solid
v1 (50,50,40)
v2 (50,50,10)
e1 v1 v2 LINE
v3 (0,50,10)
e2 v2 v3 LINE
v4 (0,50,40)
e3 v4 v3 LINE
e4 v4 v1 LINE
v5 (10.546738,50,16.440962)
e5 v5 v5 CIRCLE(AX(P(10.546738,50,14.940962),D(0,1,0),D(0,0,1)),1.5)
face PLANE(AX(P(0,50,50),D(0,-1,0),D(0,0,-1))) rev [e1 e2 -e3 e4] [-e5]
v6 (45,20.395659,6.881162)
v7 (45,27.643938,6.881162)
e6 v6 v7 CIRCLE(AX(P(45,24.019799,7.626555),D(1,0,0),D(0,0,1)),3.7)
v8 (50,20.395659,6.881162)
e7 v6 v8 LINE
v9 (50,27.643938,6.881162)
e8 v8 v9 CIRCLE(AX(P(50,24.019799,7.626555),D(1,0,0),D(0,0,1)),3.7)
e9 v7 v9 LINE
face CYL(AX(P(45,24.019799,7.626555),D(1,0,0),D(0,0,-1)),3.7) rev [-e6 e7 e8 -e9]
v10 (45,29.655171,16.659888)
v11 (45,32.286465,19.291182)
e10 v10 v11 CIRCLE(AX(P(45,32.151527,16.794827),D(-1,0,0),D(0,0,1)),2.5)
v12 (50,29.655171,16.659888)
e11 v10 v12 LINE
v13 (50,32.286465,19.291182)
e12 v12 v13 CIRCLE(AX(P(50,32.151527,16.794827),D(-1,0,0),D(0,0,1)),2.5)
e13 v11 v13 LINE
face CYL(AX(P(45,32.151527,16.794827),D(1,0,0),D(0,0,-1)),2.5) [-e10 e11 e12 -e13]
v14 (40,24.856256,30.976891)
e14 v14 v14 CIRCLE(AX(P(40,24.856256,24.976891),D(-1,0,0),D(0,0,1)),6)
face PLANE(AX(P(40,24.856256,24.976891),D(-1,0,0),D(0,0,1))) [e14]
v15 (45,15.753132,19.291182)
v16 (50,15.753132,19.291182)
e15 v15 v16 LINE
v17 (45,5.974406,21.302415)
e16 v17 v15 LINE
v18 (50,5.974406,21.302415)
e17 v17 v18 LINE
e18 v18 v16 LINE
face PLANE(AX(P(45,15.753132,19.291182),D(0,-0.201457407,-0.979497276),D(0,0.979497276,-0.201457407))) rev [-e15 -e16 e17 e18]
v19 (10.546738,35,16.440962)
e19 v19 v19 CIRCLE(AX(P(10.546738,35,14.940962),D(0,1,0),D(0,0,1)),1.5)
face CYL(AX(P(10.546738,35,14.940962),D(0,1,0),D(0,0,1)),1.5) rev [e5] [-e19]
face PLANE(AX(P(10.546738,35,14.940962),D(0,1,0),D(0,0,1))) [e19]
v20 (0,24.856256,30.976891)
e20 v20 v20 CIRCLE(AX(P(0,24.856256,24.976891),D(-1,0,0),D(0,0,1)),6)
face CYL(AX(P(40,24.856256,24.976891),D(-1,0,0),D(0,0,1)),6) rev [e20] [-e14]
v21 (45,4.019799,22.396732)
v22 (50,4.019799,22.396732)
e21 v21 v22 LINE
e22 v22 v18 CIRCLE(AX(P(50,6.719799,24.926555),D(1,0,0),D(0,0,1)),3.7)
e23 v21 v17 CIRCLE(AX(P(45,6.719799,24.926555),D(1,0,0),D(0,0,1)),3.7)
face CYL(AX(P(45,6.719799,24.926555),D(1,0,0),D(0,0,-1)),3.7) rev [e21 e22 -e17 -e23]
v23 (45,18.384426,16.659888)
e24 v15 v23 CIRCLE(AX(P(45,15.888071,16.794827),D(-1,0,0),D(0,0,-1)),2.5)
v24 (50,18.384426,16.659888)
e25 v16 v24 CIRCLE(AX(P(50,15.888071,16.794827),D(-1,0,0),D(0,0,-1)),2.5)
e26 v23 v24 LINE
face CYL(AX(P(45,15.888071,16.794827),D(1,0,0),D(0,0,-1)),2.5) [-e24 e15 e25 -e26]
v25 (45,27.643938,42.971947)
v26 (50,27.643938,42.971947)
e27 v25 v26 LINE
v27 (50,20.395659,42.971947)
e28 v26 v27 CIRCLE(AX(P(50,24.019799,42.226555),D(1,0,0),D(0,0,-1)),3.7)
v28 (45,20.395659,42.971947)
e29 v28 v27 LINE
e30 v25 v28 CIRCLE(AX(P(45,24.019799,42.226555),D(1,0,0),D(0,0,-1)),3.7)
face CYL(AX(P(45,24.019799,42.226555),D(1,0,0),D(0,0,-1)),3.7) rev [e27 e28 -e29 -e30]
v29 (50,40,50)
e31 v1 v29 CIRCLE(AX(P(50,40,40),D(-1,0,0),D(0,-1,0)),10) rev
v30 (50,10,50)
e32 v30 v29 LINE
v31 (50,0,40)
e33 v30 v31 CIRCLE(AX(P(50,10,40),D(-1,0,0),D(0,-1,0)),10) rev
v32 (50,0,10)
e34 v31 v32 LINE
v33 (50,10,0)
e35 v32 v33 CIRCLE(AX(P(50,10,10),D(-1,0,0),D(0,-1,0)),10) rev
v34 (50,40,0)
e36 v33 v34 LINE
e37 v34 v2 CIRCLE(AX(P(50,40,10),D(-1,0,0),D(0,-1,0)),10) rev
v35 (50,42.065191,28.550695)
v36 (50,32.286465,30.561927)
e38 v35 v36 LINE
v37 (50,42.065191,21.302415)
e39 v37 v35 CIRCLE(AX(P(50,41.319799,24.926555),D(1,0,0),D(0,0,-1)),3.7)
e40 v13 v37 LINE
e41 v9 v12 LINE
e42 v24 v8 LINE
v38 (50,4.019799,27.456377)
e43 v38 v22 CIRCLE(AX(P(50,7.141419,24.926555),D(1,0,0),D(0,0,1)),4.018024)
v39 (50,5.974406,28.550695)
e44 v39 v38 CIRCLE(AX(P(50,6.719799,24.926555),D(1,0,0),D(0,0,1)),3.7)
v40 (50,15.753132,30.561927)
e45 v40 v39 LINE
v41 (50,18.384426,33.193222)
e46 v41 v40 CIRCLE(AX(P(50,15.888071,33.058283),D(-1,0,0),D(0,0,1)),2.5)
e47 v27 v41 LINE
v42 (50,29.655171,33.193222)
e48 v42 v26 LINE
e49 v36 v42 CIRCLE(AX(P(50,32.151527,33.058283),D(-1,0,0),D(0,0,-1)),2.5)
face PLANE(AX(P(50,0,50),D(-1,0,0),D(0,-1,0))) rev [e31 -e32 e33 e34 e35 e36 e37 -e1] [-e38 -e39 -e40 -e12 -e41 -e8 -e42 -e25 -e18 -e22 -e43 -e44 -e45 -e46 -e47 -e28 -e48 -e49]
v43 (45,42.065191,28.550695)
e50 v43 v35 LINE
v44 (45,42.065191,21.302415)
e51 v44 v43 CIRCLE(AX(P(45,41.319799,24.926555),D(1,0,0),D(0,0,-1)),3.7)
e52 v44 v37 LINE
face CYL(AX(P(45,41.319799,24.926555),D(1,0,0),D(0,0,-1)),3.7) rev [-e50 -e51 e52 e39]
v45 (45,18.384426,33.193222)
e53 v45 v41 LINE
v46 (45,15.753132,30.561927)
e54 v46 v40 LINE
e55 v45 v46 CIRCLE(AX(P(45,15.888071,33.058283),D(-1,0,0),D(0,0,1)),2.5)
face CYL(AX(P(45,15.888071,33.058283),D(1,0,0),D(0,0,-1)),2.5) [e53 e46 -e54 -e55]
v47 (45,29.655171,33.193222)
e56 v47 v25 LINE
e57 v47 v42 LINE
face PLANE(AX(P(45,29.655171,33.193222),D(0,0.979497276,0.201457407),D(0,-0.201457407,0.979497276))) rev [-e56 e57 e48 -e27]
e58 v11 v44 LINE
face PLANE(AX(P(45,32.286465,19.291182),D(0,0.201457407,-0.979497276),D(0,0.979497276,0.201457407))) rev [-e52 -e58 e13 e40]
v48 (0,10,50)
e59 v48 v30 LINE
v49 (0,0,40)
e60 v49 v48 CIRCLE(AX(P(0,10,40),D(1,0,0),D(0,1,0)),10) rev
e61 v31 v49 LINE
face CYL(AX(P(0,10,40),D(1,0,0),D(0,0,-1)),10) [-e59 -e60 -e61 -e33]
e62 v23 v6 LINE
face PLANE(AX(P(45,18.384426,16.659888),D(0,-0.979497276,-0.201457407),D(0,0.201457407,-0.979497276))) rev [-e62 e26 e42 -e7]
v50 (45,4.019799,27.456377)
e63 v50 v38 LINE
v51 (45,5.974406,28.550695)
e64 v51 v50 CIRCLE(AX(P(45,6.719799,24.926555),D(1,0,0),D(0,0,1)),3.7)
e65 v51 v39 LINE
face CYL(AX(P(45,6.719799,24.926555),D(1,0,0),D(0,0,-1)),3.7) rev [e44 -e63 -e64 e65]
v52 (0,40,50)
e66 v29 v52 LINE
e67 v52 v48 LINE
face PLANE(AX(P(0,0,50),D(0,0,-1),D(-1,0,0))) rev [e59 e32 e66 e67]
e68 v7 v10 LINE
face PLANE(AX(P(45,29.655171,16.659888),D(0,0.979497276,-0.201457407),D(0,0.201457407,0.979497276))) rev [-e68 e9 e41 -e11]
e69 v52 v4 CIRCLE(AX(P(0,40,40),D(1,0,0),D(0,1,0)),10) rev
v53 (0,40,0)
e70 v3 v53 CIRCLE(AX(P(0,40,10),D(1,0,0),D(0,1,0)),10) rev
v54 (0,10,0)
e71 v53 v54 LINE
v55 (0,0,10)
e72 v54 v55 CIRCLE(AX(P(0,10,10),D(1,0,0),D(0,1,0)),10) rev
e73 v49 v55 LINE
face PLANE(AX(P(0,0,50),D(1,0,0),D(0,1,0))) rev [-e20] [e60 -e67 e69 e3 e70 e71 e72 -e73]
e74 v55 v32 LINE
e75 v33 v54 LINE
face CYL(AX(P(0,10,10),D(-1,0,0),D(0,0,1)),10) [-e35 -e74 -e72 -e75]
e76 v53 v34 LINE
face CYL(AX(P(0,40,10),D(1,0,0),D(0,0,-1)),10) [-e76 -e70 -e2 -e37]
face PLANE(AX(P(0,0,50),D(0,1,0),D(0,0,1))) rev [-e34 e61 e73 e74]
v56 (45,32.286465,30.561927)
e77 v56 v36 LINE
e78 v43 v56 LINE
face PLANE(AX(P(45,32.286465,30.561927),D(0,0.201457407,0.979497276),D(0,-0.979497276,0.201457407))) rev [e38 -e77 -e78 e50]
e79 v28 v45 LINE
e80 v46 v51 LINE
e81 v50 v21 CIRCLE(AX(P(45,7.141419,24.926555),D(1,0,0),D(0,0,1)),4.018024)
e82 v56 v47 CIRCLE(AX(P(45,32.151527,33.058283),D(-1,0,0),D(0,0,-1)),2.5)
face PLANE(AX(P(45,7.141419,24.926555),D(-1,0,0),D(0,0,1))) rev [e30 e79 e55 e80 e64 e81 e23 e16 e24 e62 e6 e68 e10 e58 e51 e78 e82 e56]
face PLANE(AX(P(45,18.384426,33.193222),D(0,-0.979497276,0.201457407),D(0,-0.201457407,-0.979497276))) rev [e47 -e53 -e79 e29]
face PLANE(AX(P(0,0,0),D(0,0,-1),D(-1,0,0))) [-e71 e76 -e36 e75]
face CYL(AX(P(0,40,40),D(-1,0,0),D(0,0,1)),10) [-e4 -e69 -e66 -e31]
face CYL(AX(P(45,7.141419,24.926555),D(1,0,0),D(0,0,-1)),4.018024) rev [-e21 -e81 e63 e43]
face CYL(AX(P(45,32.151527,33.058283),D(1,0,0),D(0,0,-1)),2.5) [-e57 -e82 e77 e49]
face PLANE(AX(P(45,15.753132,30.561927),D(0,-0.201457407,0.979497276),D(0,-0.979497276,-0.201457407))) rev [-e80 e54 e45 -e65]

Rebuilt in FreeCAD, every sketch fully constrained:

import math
import FreeCAD as App
import Part
import Sketcher
Q = App.Units.Quantity


def edges_at(feature, points):
    """Names of the edges that pass closest to the given points."""
    edges = feature.Shape.Edges
    near = lambda p: min(range(len(edges)), key=lambda i: edges[i].distToShape(Part.Vertex(*p))[0])
    return sorted({f"Edge{near(p) + 1}" for p in points})


def add_polygon(sketch, points):
    """Adds a closed chain of lines whose ends are joined by coincident constraints."""
    first, n = sketch.GeometryCount, len(points)
    for a, b in zip(points, points[1:] + points[:1]):
        sketch.addGeometry(Part.LineSegment(App.Vector(*a, 0), App.Vector(*b, 0)), False)
    for i in range(n):
        sketch.addConstraint(Sketcher.Constraint("Coincident", first + i, 2, first + (i + 1) % n, 1))

doc = App.newDocument("Part")
body = doc.addObject("PartDesign::Body", "Body")

sketch1 = body.newObject("Sketcher::SketchObject", "Sketch")
sketch1.AttachmentSupport = (doc.getObject("XY_Plane"), [""])
sketch1.MapMode = "FlatFace"
add_polygon(sketch1, [(0, 50), (0, 0), (50, 0), (50, 50)])
sketch1.addConstraint([
    Sketcher.Constraint("Vertical", 0),
    Sketcher.Constraint("Horizontal", 1),
    Sketcher.Constraint("Vertical", 2),
    Sketcher.Constraint("Horizontal", 3),
    Sketcher.Constraint("Coincident", 0, 2, -1, 1),
    Sketcher.Constraint("Equal", 3, 0),
    Sketcher.Constraint("DistanceX", 1, 1, 1, 2, Q("50 mm")),
])
pad1 = body.newObject("PartDesign::Pad", "Pad")
pad1.Profile = sketch1
pad1.Length = 50

sketch2 = body.newObject("Sketcher::SketchObject", "Sketch001")
sketch2.AttachmentSupport = (doc.getObject("YZ_Plane"), [""])
sketch2.MapMode = "FlatFace"
sketch2.addGeometry(Part.Circle(App.Vector(25, 25, 0), App.Vector(0, 0, 1), 6), False)
sketch2.addConstraint([
    Sketcher.Constraint("Diameter", 0, Q("12 mm")),
    Sketcher.Constraint("DistanceY", -1, 1, 0, 3, Q("24.976891 mm")),
    Sketcher.Constraint("DistanceX", -1, 1, 0, 3, Q("24.856256 mm")),
])
pocket1 = body.newObject("PartDesign::Pocket", "Pocket")
pocket1.Profile = sketch2
pocket1.Length = 40
pocket1.Reversed = True
doc.recompute()

fillet = body.newObject("PartDesign::Fillet", "Fillet")
fillet.Base = (pocket1, edges_at(pocket1, [
    (25, 50, 50),
    (25, 50, 0),
    (25, 0, 0),
    (25, 0, 50),
]))
fillet.Radius = 10

sketch3 = body.newObject("Sketcher::SketchObject", "Sketch002")
sketch3.AttachmentSupport = (doc.getObject("XZ_Plane"), [""])
sketch3.MapMode = "FlatFace"
sketch3.AttachmentOffset = App.Placement(App.Vector(0, 0, -50), App.Rotation())
sketch3.addGeometry(Part.Circle(App.Vector(10.5, 14.9, 0), App.Vector(0, 0, 1), 1.5), False)
sketch3.addConstraint([
    Sketcher.Constraint("Diameter", 0, Q("3 mm")),
    Sketcher.Constraint("DistanceX", -1, 1, 0, 3, Q("10.546738 mm")),
    Sketcher.Constraint("DistanceY", -1, 1, 0, 3, Q("14.940962 mm")),
])
pocket2 = body.newObject("PartDesign::Pocket", "Pocket001")
pocket2.Profile = sketch3
pocket2.Length = 15
pocket2.Reversed = True

sketch4 = body.newObject("Sketcher::SketchObject", "Sketch003")
sketch4.AttachmentSupport = (doc.getObject("YZ_Plane"), [""])
sketch4.MapMode = "FlatFace"
sketch4.AttachmentOffset = App.Placement(App.Vector(0, 0, 50), App.Rotation())
sketch4.addGeometry([
    Part.LineSegment(App.Vector(32.3, 19.3, 0), App.Vector(42.1, 21.3, 0)),
    Part.ArcOfCircle(Part.Circle(App.Vector(41.3, 24.9, 0), App.Vector(0, 0, 1), 3.7), math.radians(-78), math.radians(78)),
    Part.LineSegment(App.Vector(42.1, 28.6, 0), App.Vector(32.3, 30.6, 0)),
    Part.ArcOfCircle(Part.Circle(App.Vector(32.2, 33.1, 0), App.Vector(0, 0, 1), 2.5), math.radians(177), math.radians(273)),
    Part.LineSegment(App.Vector(29.7, 33.2, 0), App.Vector(27.6, 43, 0)),
    Part.ArcOfCircle(Part.Circle(App.Vector(24, 42.2, 0), App.Vector(0, 0, 1), 3.7), math.radians(12), math.radians(168)),
    Part.LineSegment(App.Vector(20.4, 43, 0), App.Vector(18.4, 33.2, 0)),
    Part.ArcOfCircle(Part.Circle(App.Vector(15.9, 33.1, 0), App.Vector(0, 0, 1), 2.5), math.radians(-93), math.radians(3)),
    Part.LineSegment(App.Vector(15.8, 30.6, 0), App.Vector(6, 28.6, 0)),
    Part.ArcOfCircle(Part.Circle(App.Vector(6.7, 24.9, 0), App.Vector(0, 0, 1), 3.7), math.radians(102), math.radians(137)),
    Part.ArcOfCircle(Part.Circle(App.Vector(7.1, 24.9, 0), App.Vector(0, 0, 1), 4), math.radians(141), math.radians(219)),
    Part.ArcOfCircle(Part.Circle(App.Vector(6.7, 24.9, 0), App.Vector(0, 0, 1), 3.7), math.radians(-137), math.radians(-102)),
    Part.LineSegment(App.Vector(6, 21.3, 0), App.Vector(15.8, 19.3, 0)),
    Part.ArcOfCircle(Part.Circle(App.Vector(15.9, 16.8, 0), App.Vector(0, 0, 1), 2.5), math.radians(-3), math.radians(93)),
    Part.LineSegment(App.Vector(18.4, 16.7, 0), App.Vector(20.4, 6.9, 0)),
    Part.ArcOfCircle(Part.Circle(App.Vector(24, 7.6, 0), App.Vector(0, 0, 1), 3.7), math.radians(-168), math.radians(-12)),
    Part.LineSegment(App.Vector(27.6, 6.9, 0), App.Vector(29.7, 16.7, 0)),
    Part.ArcOfCircle(Part.Circle(App.Vector(32.2, 16.8, 0), App.Vector(0, 0, 1), 2.5), math.radians(87), math.radians(183)),
], False)
sketch4.addConstraint([
    Sketcher.Constraint("Tangent", 0, 2, 1, 1),
    Sketcher.Constraint("Tangent", 1, 2, 2, 1),
    Sketcher.Constraint("Coincident", 2, 2, 3, 2),
    Sketcher.Constraint("Coincident", 3, 1, 4, 1),
    Sketcher.Constraint("Tangent", 4, 2, 5, 1),
    Sketcher.Constraint("Tangent", 5, 2, 6, 1),
    Sketcher.Constraint("Coincident", 6, 2, 7, 2),
    Sketcher.Constraint("Coincident", 7, 1, 8, 1),
    Sketcher.Constraint("Tangent", 8, 2, 9, 1),
    Sketcher.Constraint("Coincident", 9, 2, 10, 1),
    Sketcher.Constraint("Coincident", 10, 2, 11, 1),
    Sketcher.Constraint("Tangent", 11, 2, 12, 1),
    Sketcher.Constraint("Coincident", 12, 2, 13, 2),
    Sketcher.Constraint("Coincident", 13, 1, 14, 1),
    Sketcher.Constraint("Tangent", 14, 2, 15, 1),
    Sketcher.Constraint("Tangent", 15, 2, 16, 1),
    Sketcher.Constraint("Coincident", 16, 2, 17, 2),
    Sketcher.Constraint("Coincident", 17, 1, 0, 1),
    Sketcher.Constraint("Coincident", 11, 3, 9, 3),
    Sketcher.Constraint("Equal", 1, 5),
    Sketcher.Constraint("Equal", 3, 7),
    Sketcher.Constraint("Equal", 5, 9),
    Sketcher.Constraint("Equal", 9, 11),
    Sketcher.Constraint("Equal", 7, 13),
    Sketcher.Constraint("Equal", 11, 15),
    Sketcher.Constraint("Equal", 13, 17),
    Sketcher.Constraint("Perpendicular", 0, 4),
    Sketcher.Constraint("Perpendicular", 2, 6),
    Sketcher.Constraint("Perpendicular", 4, 8),
    Sketcher.Constraint("Perpendicular", 6, 12),
    Sketcher.Constraint("Perpendicular", 8, 14),
    Sketcher.Constraint("Perpendicular", 12, 16),
    Sketcher.Constraint("Horizontal", 3, 3, 7, 3),
    Sketcher.Constraint("Horizontal", 1, 3, 9, 3),
    Sketcher.Constraint("Horizontal", 9, 3, 10, 3),
    Sketcher.Constraint("Horizontal", 13, 3, 17, 3),
    Sketcher.Constraint("Horizontal", 4, 2, 5, 2),
    Sketcher.Constraint("Horizontal", 3, 1, 6, 2),
    Sketcher.Constraint("Horizontal", 2, 2, 7, 1),
    Sketcher.Constraint("Horizontal", 13, 1, 16, 2),
    Sketcher.Constraint("Horizontal", 12, 2, 17, 1),
    Sketcher.Constraint("Vertical", 7, 3, 13, 3),
    Sketcher.Constraint("Vertical", 7, 1, 12, 2),
    Sketcher.Constraint("Vertical", 6, 2, 13, 1),
    Sketcher.Constraint("Equal", 2, 4),
    Sketcher.Constraint("Radius", 1, Q("3.7 mm")),
    Sketcher.Constraint("Radius", 3, Q("2.5 mm")),
    Sketcher.Constraint("DistanceX", 5, 3, 1, 3, Q("17.3 mm")),
    Sketcher.Constraint("DistanceY", 1, 3, 5, 3, Q("17.3 mm")),
    Sketcher.Constraint("DistanceX", 9, 2, 9, 3, Q("2.7 mm")),
    Sketcher.Constraint("Radius", 10, Q("4.018024 mm")),
    Sketcher.Constraint("DistanceX", -1, 1, 1, 3, Q("41.319799 mm")),
    Sketcher.Constraint("DistanceY", 17, 3, 2, 2, Q("13.7671 mm")),
    Sketcher.Constraint("DistanceX", -1, 1, 7, 3, Q("15.888071 mm")),
    Sketcher.Constraint("DistanceY", -1, 1, 3, 1, Q("33.193222 mm")),
])
pocket3 = body.newObject("PartDesign::Pocket", "Pocket002")
pocket3.Profile = sketch4
pocket3.Length = 5

doc.recompute()
